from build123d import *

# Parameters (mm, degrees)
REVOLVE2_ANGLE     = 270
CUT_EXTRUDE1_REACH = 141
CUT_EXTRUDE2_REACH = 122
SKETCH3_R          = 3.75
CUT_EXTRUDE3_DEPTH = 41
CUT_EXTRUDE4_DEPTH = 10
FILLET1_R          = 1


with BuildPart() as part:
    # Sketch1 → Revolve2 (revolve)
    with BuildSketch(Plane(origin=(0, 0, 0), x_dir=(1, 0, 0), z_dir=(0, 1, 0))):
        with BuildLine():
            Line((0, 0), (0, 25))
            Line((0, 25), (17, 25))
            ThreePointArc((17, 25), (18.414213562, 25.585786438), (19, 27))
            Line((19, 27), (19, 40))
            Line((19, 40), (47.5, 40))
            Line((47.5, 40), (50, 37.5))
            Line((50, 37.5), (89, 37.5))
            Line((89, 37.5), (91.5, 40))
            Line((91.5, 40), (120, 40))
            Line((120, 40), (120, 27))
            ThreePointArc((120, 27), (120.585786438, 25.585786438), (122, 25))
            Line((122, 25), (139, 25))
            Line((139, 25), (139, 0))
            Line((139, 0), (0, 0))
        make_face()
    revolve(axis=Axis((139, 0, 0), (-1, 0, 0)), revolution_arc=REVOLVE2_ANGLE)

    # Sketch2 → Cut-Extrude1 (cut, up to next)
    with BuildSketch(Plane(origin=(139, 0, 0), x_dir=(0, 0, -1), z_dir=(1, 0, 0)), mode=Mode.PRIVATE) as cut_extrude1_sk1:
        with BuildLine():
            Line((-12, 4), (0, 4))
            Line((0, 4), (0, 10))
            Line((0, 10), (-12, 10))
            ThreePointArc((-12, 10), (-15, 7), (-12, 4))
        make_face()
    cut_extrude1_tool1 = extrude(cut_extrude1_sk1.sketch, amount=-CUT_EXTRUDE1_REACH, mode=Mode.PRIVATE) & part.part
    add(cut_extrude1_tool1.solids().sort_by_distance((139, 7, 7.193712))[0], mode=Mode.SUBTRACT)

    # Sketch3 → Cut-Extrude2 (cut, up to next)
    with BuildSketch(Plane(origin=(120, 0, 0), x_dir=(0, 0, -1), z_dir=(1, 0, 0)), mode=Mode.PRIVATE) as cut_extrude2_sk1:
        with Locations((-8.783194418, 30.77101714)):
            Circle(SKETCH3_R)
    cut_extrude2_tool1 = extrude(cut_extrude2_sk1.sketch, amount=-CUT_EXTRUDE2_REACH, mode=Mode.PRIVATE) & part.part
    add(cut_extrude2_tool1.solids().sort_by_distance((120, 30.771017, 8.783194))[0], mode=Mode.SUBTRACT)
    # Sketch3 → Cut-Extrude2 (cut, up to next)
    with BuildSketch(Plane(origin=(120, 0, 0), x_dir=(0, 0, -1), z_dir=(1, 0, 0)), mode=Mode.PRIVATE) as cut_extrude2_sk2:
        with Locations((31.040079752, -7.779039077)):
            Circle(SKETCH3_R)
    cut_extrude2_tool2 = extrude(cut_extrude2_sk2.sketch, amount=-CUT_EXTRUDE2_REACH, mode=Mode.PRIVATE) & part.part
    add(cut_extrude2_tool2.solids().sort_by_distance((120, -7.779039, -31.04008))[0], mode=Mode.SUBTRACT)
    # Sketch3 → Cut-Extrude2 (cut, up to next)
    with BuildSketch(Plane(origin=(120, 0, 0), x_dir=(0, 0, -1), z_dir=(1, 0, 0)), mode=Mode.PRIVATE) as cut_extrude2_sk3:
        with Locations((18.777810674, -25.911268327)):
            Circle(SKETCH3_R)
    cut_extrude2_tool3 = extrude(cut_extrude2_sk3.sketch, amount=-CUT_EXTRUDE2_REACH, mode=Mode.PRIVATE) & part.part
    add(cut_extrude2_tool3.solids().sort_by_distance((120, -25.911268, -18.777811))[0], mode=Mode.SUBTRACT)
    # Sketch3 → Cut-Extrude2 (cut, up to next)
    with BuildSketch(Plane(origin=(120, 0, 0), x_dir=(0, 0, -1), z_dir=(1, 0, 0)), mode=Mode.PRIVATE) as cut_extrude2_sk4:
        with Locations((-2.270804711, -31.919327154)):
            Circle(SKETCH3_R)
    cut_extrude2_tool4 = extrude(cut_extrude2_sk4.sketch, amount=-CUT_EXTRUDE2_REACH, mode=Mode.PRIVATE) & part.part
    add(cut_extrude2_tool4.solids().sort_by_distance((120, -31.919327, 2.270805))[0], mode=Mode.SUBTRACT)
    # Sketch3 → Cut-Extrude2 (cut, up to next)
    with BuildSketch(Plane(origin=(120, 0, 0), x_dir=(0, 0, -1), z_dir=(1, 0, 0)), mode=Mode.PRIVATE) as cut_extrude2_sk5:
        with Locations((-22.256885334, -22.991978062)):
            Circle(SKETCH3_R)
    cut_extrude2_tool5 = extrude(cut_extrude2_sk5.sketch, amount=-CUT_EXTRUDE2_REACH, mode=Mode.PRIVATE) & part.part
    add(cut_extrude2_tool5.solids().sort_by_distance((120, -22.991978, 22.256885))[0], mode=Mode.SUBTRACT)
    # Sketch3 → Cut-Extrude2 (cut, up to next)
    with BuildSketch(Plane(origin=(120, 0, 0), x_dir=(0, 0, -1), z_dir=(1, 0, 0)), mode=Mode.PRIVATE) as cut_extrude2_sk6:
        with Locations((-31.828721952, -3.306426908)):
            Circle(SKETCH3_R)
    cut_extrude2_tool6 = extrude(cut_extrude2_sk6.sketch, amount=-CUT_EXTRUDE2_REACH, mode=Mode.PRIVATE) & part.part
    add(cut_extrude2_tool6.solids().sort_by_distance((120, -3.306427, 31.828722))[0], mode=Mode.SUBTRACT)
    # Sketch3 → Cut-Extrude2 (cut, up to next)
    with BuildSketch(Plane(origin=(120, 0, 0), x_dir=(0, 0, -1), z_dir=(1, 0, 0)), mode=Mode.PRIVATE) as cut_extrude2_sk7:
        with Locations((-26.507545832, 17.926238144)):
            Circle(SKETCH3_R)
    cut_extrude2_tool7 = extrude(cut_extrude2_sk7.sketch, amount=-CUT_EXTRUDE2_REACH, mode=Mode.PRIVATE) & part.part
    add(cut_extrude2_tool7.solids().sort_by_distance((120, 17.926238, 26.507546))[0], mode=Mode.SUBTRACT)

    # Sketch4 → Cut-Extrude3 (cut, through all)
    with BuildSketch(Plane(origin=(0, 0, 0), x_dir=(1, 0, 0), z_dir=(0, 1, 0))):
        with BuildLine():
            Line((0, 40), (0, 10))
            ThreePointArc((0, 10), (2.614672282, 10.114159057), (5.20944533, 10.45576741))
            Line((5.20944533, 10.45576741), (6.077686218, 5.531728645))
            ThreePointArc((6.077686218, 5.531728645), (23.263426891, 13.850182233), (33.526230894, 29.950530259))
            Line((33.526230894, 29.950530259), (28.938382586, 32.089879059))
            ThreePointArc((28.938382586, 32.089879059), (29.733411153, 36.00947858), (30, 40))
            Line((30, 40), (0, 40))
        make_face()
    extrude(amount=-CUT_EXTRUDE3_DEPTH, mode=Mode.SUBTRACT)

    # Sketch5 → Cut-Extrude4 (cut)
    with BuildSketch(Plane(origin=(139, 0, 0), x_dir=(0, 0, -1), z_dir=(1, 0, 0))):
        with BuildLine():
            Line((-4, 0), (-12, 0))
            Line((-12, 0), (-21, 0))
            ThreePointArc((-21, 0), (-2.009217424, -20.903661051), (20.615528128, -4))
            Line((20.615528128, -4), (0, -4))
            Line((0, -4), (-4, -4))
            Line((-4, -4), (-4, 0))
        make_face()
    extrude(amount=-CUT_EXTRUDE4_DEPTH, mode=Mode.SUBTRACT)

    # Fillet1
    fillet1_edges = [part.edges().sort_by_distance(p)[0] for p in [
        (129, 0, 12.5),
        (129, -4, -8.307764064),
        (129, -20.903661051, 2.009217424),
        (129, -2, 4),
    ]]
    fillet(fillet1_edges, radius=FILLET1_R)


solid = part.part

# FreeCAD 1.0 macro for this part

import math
import FreeCAD as App
import Part
import Sketcher
from FreeCAD import Vector


def edges_at(feature, points):
    """Names of the edges that pass closest to the given points."""
    edges = feature.Shape.Edges
    near = lambda p: min(range(len(edges)), key=lambda i: edges[i].distToShape(Part.Vertex(*p))[0])
    return sorted({f"Edge{near(p) + 1}" for p in points})

doc = App.newDocument("Part")
params = doc.addObject("Spreadsheet::Sheet", "Params")
for row, (alias, value) in enumerate([
    ("sketch1_radius", "2 mm"),
    ("sketch1_width", "139 mm"),
    ("sketch1_width2", "17 mm"),
    ("sketch1_width3", "39 mm"),
    ("sketch1_height", "25 mm"),
    ("revolution_angle", "270 deg"),
    ("sketch2_radius", "3 mm"),
    ("sketch2_height", "12 mm"),
    ("sketch3_diameter", "7.5 mm"),
    ("sketch4_diameter", "7.5 mm"),
    ("sketch5_diameter", "7.5 mm"),
    ("sketch6_diameter", "7.5 mm"),
    ("sketch7_diameter", "7.5 mm"),
    ("sketch8_diameter", "7.5 mm"),
    ("sketch9_diameter", "7.5 mm"),
    ("sketch10_radius", "30 mm"),
    ("sketch10_radius2", "35 mm"),
    ("sketch10_radius3", "30 mm"),
    ("sketch11_radius", "21 mm"),
    ("sketch11_width", "4 mm"),
    ("sketch11_height", "17 mm"),
    ("pocket10_length", "10 mm"),
    ("fillet_radius", "1 mm"),
], start=1):
    params.set(f"A{row}", alias)
    params.set(f"B{row}", "=" + value)
    params.setAlias(f"B{row}", alias)

body = doc.addObject("PartDesign::Body", "Body")

# Sketch on XZ plane
sketch1 = doc.addObject("Sketcher::SketchObject", "Sketch")
body.addObject(sketch1)
sketch1.AttachmentSupport = (doc.XZ_Plane, [""])
sketch1.MapMode = "FlatFace"
sketch1.addGeometry([
    Part.LineSegment(Vector(0, -25, 0), Vector(0, 0, 0)),  # 0
    Part.LineSegment(Vector(0, 0, 0), Vector(139, 0, 0)),  # 1
    Part.LineSegment(Vector(139, 0, 0), Vector(139, -25, 0)),  # 2
    Part.LineSegment(Vector(139, -25, 0), Vector(122, -25, 0)),  # 3
    Part.ArcOfCircle(Part.Circle(Vector(122, -27, 0), Vector(0, 0, 1), 2), math.radians(90), math.radians(180)),  # 4
    Part.LineSegment(Vector(120, -27, 0), Vector(120, -40, 0)),  # 5
    Part.LineSegment(Vector(120, -40, 0), Vector(91.5, -40, 0)),  # 6
    Part.LineSegment(Vector(91.5, -40, 0), Vector(89, -37.5, 0)),  # 7
    Part.LineSegment(Vector(89, -37.5, 0), Vector(50, -37.5, 0)),  # 8
    Part.LineSegment(Vector(50, -37.5, 0), Vector(47.5, -40, 0)),  # 9
    Part.LineSegment(Vector(47.5, -40, 0), Vector(19, -40, 0)),  # 10
    Part.LineSegment(Vector(19, -40, 0), Vector(19, -27, 0)),  # 11
    Part.ArcOfCircle(Part.Circle(Vector(17, -27, 0), Vector(0, 0, 1), 2), math.radians(0), math.radians(90)),  # 12
    Part.LineSegment(Vector(17, -25, 0), Vector(0, -25, 0)),  # 13
], False)
sketch1.addConstraint([
    Sketcher.Constraint("Coincident", 0, 2, 1, 1),
    Sketcher.Constraint("Coincident", 1, 2, 2, 1),
    Sketcher.Constraint("Coincident", 2, 2, 3, 1),
    Sketcher.Constraint("Tangent", 3, 2, 4, 1),
    Sketcher.Constraint("Tangent", 4, 2, 5, 1),
    Sketcher.Constraint("Coincident", 5, 2, 6, 1),
    Sketcher.Constraint("Coincident", 6, 2, 7, 1),
    Sketcher.Constraint("Coincident", 7, 2, 8, 1),
    Sketcher.Constraint("Coincident", 8, 2, 9, 1),
    Sketcher.Constraint("Coincident", 9, 2, 10, 1),
    Sketcher.Constraint("Coincident", 10, 2, 11, 1),
    Sketcher.Constraint("Tangent", 11, 2, 12, 1),
    Sketcher.Constraint("Tangent", 12, 2, 13, 1),
    Sketcher.Constraint("Coincident", 13, 2, 0, 1),
    Sketcher.Constraint("Vertical", 0),
    Sketcher.Constraint("Horizontal", 1),
    Sketcher.Constraint("Vertical", 2),
    Sketcher.Constraint("Horizontal", 3),
    Sketcher.Constraint("Vertical", 5),
    Sketcher.Constraint("Horizontal", 6),
    Sketcher.Constraint("Horizontal", 8),
    Sketcher.Constraint("Horizontal", 10),
    Sketcher.Constraint("Vertical", 11),
    Sketcher.Constraint("Horizontal", 13),
    Sketcher.Constraint("Coincident", 0, 2, -1, 1),
    Sketcher.Constraint("Equal", 4, 12),
    Sketcher.Constraint("Perpendicular", 7, 9),
    Sketcher.Constraint("Horizontal", 4, 3, 12, 3),
    Sketcher.Constraint("Horizontal", 6, 2, 9, 2),
    Sketcher.Constraint("Equal", 6, 10),
    Sketcher.Constraint("Equal", 3, 13),
    Sketcher.Constraint("Equal", 7, 9),
    Sketcher.Constraint("Radius", 4, 2.0),
    Sketcher.Constraint("DistanceX", 1, 1, 1, 2, 139.0),
    Sketcher.Constraint("DistanceX", 3, 2, 3, 1, 17.0),
    Sketcher.Constraint("DistanceX", 8, 2, 8, 1, 39.0),
    Sketcher.Constraint("DistanceY", 0, 1, 0, 2, 25.0),
    Sketcher.Constraint("DistanceY", 5, 2, 5, 1, 13.0),
    Sketcher.Constraint("DistanceX", 6, 2, 6, 1, 28.5),
])
sketch1.setExpression("Constraints[32]", "Params.sketch1_radius")
sketch1.setExpression("Constraints[33]", "Params.sketch1_width")
sketch1.setExpression("Constraints[34]", "Params.sketch1_width2")
sketch1.setExpression("Constraints[35]", "Params.sketch1_width3")
sketch1.setExpression("Constraints[36]", "Params.sketch1_height")
revolution = doc.addObject("PartDesign::Revolution", "Revolution")
body.addObject(revolution)
revolution.Profile = sketch1
revolution.ReferenceAxis = (sketch1, ["H_Axis"])
revolution.setExpression("Angle", "Params.revolution_angle")
revolution.Reversed = True

# Sketch on YZ plane
sketch2 = doc.addObject("Sketcher::SketchObject", "Sketch001")
body.addObject(sketch2)
sketch2.AttachmentSupport = (doc.YZ_Plane, [""])
sketch2.MapMode = "FlatFace"
sketch2.AttachmentOffset = App.Placement(Vector(0, 0, 139), App.Rotation())
sketch2.addGeometry([
    Part.LineSegment(Vector(4, 12, 0), Vector(4, 0, 0)),
    Part.LineSegment(Vector(4, 0, 0), Vector(10, 0, 0)),
    Part.LineSegment(Vector(10, 0, 0), Vector(10, 12, 0)),
    Part.ArcOfCircle(Part.Circle(Vector(7, 12, 0), Vector(0, 0, 1), 3), math.radians(0), math.radians(180)),
], False)
sketch2.addConstraint([
    Sketcher.Constraint("Coincident", 0, 2, 1, 1),
    Sketcher.Constraint("Coincident", 1, 2, 2, 1),
    Sketcher.Constraint("Tangent", 2, 2, 3, 1),
    Sketcher.Constraint("Tangent", 3, 2, 0, 1),
    Sketcher.Constraint("Vertical", 0),
    Sketcher.Constraint("Horizontal", 1),
    Sketcher.Constraint("Vertical", 2),
    Sketcher.Constraint("PointOnObject", 0, 2, -1),
    Sketcher.Constraint("Radius", 3, 3.0),
    Sketcher.Constraint("DistanceY", 0, 2, 0, 1, 12.0),
    Sketcher.Constraint("DistanceX", -1, 1, 3, 3, 7.0),
])
sketch2.setExpression("Constraints[8]", "Params.sketch2_radius")
sketch2.setExpression("Constraints[9]", "Params.sketch2_height")
pocket1 = doc.addObject("PartDesign::Pocket", "Pocket")
body.addObject(pocket1)
pocket1.Profile = sketch2
pocket1.Type = "UpToFirst"

# Sketch on YZ plane
sketch3 = doc.addObject("Sketcher::SketchObject", "Sketch002")
body.addObject(sketch3)
sketch3.AttachmentSupport = (doc.YZ_Plane, [""])
sketch3.MapMode = "FlatFace"
sketch3.AttachmentOffset = App.Placement(Vector(0, 0, 120), App.Rotation())
sketch3.addGeometry(Part.Circle(Vector(30.8, 8.8, 0), Vector(0, 0, 1), 3.8), False)
sketch3.addConstraint([
    Sketcher.Constraint("Diameter", 0, 7.5),
    Sketcher.Constraint("DistanceX", -1, 1, 0, 3, 30.771017),
    Sketcher.Constraint("DistanceY", -1, 1, 0, 3, 8.783194),
])
sketch3.setExpression("Constraints[0]", "Params.sketch3_diameter")
pocket2 = doc.addObject("PartDesign::Pocket", "Pocket001")
body.addObject(pocket2)
pocket2.Profile = sketch3
pocket2.Type = "UpToFirst"

# Sketch on YZ plane
sketch4 = doc.addObject("Sketcher::SketchObject", "Sketch003")
body.addObject(sketch4)
sketch4.AttachmentSupport = (doc.YZ_Plane, [""])
sketch4.MapMode = "FlatFace"
sketch4.AttachmentOffset = App.Placement(Vector(0, 0, 120), App.Rotation())
sketch4.addGeometry(Part.Circle(Vector(-7.8, -31, 0), Vector(0, 0, 1), 3.8), False)
sketch4.addConstraint([
    Sketcher.Constraint("Diameter", 0, 7.5),
    Sketcher.Constraint("DistanceX", 0, 3, -1, 1, 7.779039),
    Sketcher.Constraint("DistanceY", 0, 3, -1, 1, 31.04008),
])
sketch4.setExpression("Constraints[0]", "Params.sketch4_diameter")
pocket3 = doc.addObject("PartDesign::Pocket", "Pocket002")
body.addObject(pocket3)
pocket3.Profile = sketch4
pocket3.Type = "UpToFirst"

# Sketch on YZ plane
sketch5 = doc.addObject("Sketcher::SketchObject", "Sketch004")
body.addObject(sketch5)
sketch5.AttachmentSupport = (doc.YZ_Plane, [""])
sketch5.MapMode = "FlatFace"
sketch5.AttachmentOffset = App.Placement(Vector(0, 0, 120), App.Rotation())
sketch5.addGeometry(Part.Circle(Vector(-25.9, -18.8, 0), Vector(0, 0, 1), 3.8), False)
sketch5.addConstraint([
    Sketcher.Constraint("Diameter", 0, 7.5),
    Sketcher.Constraint("DistanceX", 0, 3, -1, 1, 25.911268),
    Sketcher.Constraint("DistanceY", 0, 3, -1, 1, 18.777811),
])
sketch5.setExpression("Constraints[0]", "Params.sketch5_diameter")
pocket4 = doc.addObject("PartDesign::Pocket", "Pocket003")
body.addObject(pocket4)
pocket4.Profile = sketch5
pocket4.Type = "UpToFirst"

# Sketch on YZ plane
sketch6 = doc.addObject("Sketcher::SketchObject", "Sketch005")
body.addObject(sketch6)
sketch6.AttachmentSupport = (doc.YZ_Plane, [""])
sketch6.MapMode = "FlatFace"
sketch6.AttachmentOffset = App.Placement(Vector(0, 0, 120), App.Rotation())
sketch6.addGeometry(Part.Circle(Vector(-31.9, 2.3, 0), Vector(0, 0, 1), 3.8), False)
sketch6.addConstraint([
    Sketcher.Constraint("Diameter", 0, 7.5),
    Sketcher.Constraint("DistanceX", 0, 3, -1, 1, 31.919327),
    Sketcher.Constraint("DistanceY", -1, 1, 0, 3, 2.270805),
])
sketch6.setExpression("Constraints[0]", "Params.sketch6_diameter")
pocket5 = doc.addObject("PartDesign::Pocket", "Pocket004")
body.addObject(pocket5)
pocket5.Profile = sketch6
pocket5.Type = "UpToFirst"

# Sketch on YZ plane
sketch7 = doc.addObject("Sketcher::SketchObject", "Sketch006")
body.addObject(sketch7)
sketch7.AttachmentSupport = (doc.YZ_Plane, [""])
sketch7.MapMode = "FlatFace"
sketch7.AttachmentOffset = App.Placement(Vector(0, 0, 120), App.Rotation())
sketch7.addGeometry(Part.Circle(Vector(-23, 22.3, 0), Vector(0, 0, 1), 3.8), False)
sketch7.addConstraint([
    Sketcher.Constraint("Diameter", 0, 7.5),
    Sketcher.Constraint("DistanceX", 0, 3, -1, 1, 22.991978),
    Sketcher.Constraint("DistanceY", -1, 1, 0, 3, 22.256885),
])
sketch7.setExpression("Constraints[0]", "Params.sketch7_diameter")
pocket6 = doc.addObject("PartDesign::Pocket", "Pocket005")
body.addObject(pocket6)
pocket6.Profile = sketch7
pocket6.Type = "UpToFirst"

# Sketch on YZ plane
sketch8 = doc.addObject("Sketcher::SketchObject", "Sketch007")
body.addObject(sketch8)
sketch8.AttachmentSupport = (doc.YZ_Plane, [""])
sketch8.MapMode = "FlatFace"
sketch8.AttachmentOffset = App.Placement(Vector(0, 0, 120), App.Rotation())
sketch8.addGeometry(Part.Circle(Vector(-3.3, 31.8, 0), Vector(0, 0, 1), 3.8), False)
sketch8.addConstraint([
    Sketcher.Constraint("Diameter", 0, 7.5),
    Sketcher.Constraint("DistanceY", -1, 1, 0, 3, 31.828722),
    Sketcher.Constraint("DistanceX", 0, 3, -1, 1, 3.306427),
])
sketch8.setExpression("Constraints[0]", "Params.sketch8_diameter")
pocket7 = doc.addObject("PartDesign::Pocket", "Pocket006")
body.addObject(pocket7)
pocket7.Profile = sketch8
pocket7.Type = "UpToFirst"

# Sketch on YZ plane
sketch9 = doc.addObject("Sketcher::SketchObject", "Sketch008")
body.addObject(sketch9)
sketch9.AttachmentSupport = (doc.YZ_Plane, [""])
sketch9.MapMode = "FlatFace"
sketch9.AttachmentOffset = App.Placement(Vector(0, 0, 120), App.Rotation())
sketch9.addGeometry(Part.Circle(Vector(17.9, 26.5, 0), Vector(0, 0, 1), 3.8), False)
sketch9.addConstraint([
    Sketcher.Constraint("Diameter", 0, 7.5),
    Sketcher.Constraint("DistanceX", -1, 1, 0, 3, 17.926238),
    Sketcher.Constraint("DistanceY", -1, 1, 0, 3, 26.507546),
])
sketch9.setExpression("Constraints[0]", "Params.sketch9_diameter")
pocket8 = doc.addObject("PartDesign::Pocket", "Pocket007")
body.addObject(pocket8)
pocket8.Profile = sketch9
pocket8.Type = "UpToFirst"

# Sketch on XZ plane
sketch10 = doc.addObject("Sketcher::SketchObject", "Sketch009")
body.addObject(sketch10)
sketch10.AttachmentSupport = (doc.XZ_Plane, [""])
sketch10.MapMode = "FlatFace"
sketch10.addGeometry([
    Part.LineSegment(Vector(0, -40, 0), Vector(0, -10, 0)),  # 0
    Part.ArcOfCircle(Part.Circle(Vector(0, -40, 0), Vector(0, 0, 1), 30), math.radians(80), math.radians(90)),  # 1
    Part.LineSegment(Vector(5.209445, -10.455767, 0), Vector(6.077686, -5.531729, 0)),  # 2
    Part.ArcOfCircle(Part.Circle(Vector(0, -40, 0), Vector(0, 0, 1), 35), math.radians(16.686074), math.radians(80)),  # 3
    Part.LineSegment(Vector(33.526231, -29.95053, 0), Vector(28.938383, -32.089879, 0)),  # 4
    Part.ArcOfCircle(Part.Circle(Vector(0, -40, 0), Vector(0, 0, 1), 30), math.radians(0), math.radians(15.28798)),  # 5
    Part.LineSegment(Vector(30, -40, 0), Vector(0, -40, 0)),  # 6
], False)
sketch10.addConstraint([
    Sketcher.Constraint("Coincident", 0, 2, 1, 2),
    Sketcher.Constraint("Coincident", 1, 1, 2, 1),
    Sketcher.Constraint("Coincident", 2, 2, 3, 2),
    Sketcher.Constraint("Coincident", 3, 1, 4, 1),
    Sketcher.Constraint("Coincident", 4, 2, 5, 2),
    Sketcher.Constraint("Coincident", 5, 1, 6, 1),
    Sketcher.Constraint("Coincident", 6, 2, 0, 1),
    Sketcher.Constraint("Vertical", 0),
    Sketcher.Constraint("Horizontal", 6),
    Sketcher.Constraint("Coincident", 3, 3, 1, 3),
    Sketcher.Constraint("Coincident", 5, 3, 1, 3),
    Sketcher.Constraint("Coincident", 6, 2, 1, 3),
    Sketcher.Constraint("PointOnObject", 1, 3, -2),
    Sketcher.Constraint("Radius", 1, 30.0),
    Sketcher.Constraint("Radius", 3, 35.0),
    Sketcher.Constraint("Radius", 5, 30.0),
    Sketcher.Constraint("DistanceY", 1, 3, -1, 1, 40.0),
    Sketcher.Constraint("DistanceY", 3, 1, 2, 2, 24.418802),
    Sketcher.Constraint("Distance", 4, 5.062131),
    Sketcher.Constraint("DistanceY", 2, 2, -1, 1, 5.531729),
    Sketcher.Constraint("DistanceX", 1, 1, 2, 2, 0.868241),
])
sketch10.setExpression("Constraints[13]", "Params.sketch10_radius")
sketch10.setExpression("Constraints[14]", "Params.sketch10_radius2")
sketch10.setExpression("Constraints[15]", "Params.sketch10_radius3")
pocket9 = doc.addObject("PartDesign::Pocket", "Pocket008")
body.addObject(pocket9)
pocket9.Profile = sketch10
pocket9.Type = "ThroughAll"
pocket9.Reversed = True

# Sketch on YZ plane
sketch11 = doc.addObject("Sketcher::SketchObject", "Sketch010")
body.addObject(sketch11)
sketch11.AttachmentSupport = (doc.YZ_Plane, [""])
sketch11.MapMode = "FlatFace"
sketch11.AttachmentOffset = App.Placement(Vector(0, 0, 139), App.Rotation())
sketch11.addGeometry([
    Part.LineSegment(Vector(0, 4, 0), Vector(0, 21, 0)),
    Part.ArcOfCircle(Part.Circle(Vector(0, 0, 0), Vector(0, 0, 1), 21), math.radians(90), math.radians(259)),
    Part.LineSegment(Vector(-4, -20.6, 0), Vector(-4, 4, 0)),
    Part.LineSegment(Vector(-4, 4, 0), Vector(0, 4, 0)),
], False)
sketch11.addConstraint([
    Sketcher.Constraint("Coincident", 0, 2, 1, 1),
    Sketcher.Constraint("Coincident", 1, 2, 2, 1),
    Sketcher.Constraint("Coincident", 2, 2, 3, 1),
    Sketcher.Constraint("Coincident", 3, 2, 0, 1),
    Sketcher.Constraint("Vertical", 0),
    Sketcher.Constraint("Vertical", 2),
    Sketcher.Constraint("Horizontal", 3),
    Sketcher.Constraint("Coincident", 1, 3, -1, 1),
    Sketcher.Constraint("PointOnObject", 0, 2, -2),
    Sketcher.Constraint("Radius", 1, 21.0),
    Sketcher.Constraint("DistanceX", 3, 1, 3, 2, 4.0),
    Sketcher.Constraint("DistanceY", 0, 1, 0, 2, 17.0),
])
sketch11.setExpression("Constraints[9]", "Params.sketch11_radius")
sketch11.setExpression("Constraints[10]", "Params.sketch11_width")
sketch11.setExpression("Constraints[11]", "Params.sketch11_height")
pocket10 = doc.addObject("PartDesign::Pocket", "Pocket009")
body.addObject(pocket10)
pocket10.Profile = sketch11
pocket10.setExpression("Length", "Params.pocket10_length")
doc.recompute()

fillet = doc.addObject("PartDesign::Fillet", "Fillet")
body.addObject(fillet)
fillet.Base = (pocket10, edges_at(pocket10, [
    (129, 0, 12.5),
    (129, -4, -8.308),
    (129, -20.904, 2.009),
    (129, -2, 4),
]))
fillet.setExpression("Radius", "Params.fillet_radius")

doc.recompute()
